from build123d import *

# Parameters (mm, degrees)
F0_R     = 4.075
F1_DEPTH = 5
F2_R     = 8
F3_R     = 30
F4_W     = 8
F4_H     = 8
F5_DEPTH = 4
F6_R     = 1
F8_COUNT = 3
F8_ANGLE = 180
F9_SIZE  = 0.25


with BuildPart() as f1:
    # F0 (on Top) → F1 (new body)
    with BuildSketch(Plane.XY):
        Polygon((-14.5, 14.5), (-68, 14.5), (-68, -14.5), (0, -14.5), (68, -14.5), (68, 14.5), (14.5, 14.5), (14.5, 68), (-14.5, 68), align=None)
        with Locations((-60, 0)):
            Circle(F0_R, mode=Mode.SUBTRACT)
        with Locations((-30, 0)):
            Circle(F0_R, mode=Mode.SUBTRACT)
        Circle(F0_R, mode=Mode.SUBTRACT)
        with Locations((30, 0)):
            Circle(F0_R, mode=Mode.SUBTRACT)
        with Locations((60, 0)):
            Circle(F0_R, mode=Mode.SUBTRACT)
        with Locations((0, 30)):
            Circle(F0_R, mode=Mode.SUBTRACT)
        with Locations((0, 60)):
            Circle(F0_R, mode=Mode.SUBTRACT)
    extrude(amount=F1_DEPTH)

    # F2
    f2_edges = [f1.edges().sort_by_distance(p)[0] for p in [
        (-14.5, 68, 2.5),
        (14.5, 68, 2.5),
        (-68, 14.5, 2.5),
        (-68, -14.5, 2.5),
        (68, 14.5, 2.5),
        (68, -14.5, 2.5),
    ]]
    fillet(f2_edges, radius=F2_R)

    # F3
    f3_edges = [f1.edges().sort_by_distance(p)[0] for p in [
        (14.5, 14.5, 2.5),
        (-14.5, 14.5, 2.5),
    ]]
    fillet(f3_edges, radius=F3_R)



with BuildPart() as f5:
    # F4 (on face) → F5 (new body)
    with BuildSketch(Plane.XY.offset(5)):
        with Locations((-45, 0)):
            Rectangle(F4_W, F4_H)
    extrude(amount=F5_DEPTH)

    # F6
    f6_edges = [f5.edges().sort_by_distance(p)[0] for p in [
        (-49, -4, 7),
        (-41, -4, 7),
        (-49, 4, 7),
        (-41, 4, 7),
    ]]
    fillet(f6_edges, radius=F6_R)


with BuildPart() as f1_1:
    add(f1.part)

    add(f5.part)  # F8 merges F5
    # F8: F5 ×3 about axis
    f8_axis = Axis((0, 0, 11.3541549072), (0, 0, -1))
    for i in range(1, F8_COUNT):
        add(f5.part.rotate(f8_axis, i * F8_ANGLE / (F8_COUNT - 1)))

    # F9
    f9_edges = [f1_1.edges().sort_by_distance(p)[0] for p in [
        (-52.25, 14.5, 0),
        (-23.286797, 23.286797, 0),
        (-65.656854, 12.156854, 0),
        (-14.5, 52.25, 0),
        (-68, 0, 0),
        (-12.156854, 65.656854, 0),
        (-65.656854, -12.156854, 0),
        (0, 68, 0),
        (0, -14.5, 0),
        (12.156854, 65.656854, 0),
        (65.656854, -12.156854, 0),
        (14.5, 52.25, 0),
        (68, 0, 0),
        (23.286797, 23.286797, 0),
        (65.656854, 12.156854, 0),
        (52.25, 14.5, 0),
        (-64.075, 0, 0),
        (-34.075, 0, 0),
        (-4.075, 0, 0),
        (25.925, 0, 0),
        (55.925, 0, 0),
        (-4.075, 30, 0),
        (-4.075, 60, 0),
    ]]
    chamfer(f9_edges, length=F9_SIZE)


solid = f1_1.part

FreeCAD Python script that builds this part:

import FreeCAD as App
import Part
import Sketcher

V = App.Vector
Q = App.Units.Quantity


def edges_at(feature, points):
    """Names of the edges that pass closest to the given points."""
    edges = feature.Shape.Edges
    near = lambda p: min(range(len(edges)), key=lambda i: edges[i].distToShape(Part.Vertex(*p))[0])
    return sorted({f"Edge{near(p) + 1}" for p in points})


def add_polygon(sketch, points):
    """Adds a closed chain of lines whose ends are joined by coincident constraints."""
    first, n = sketch.GeometryCount, len(points)
    for a, b in zip(points, points[1:] + points[:1]):
        sketch.addGeometry(Part.LineSegment(App.Vector(*a, 0), App.Vector(*b, 0)), False)
    for i in range(n):
        sketch.addConstraint(Sketcher.Constraint("Coincident", first + i, 2, first + (i + 1) % n, 1))

doc = App.newDocument("Part")
body = doc.addObject("PartDesign::Body", "Body")

sketch1 = body.newObject("Sketcher::SketchObject", "Sketch")
sketch1.AttachmentSupport = (doc.getObject("XY_Plane"), [""])
sketch1.MapMode = "FlatFace"
add_polygon(sketch1, [(-14.5, 14.5), (-68, 14.5), (-68, -14.5), (68, -14.5), (68, 14.5), (14.5, 14.5), (14.5, 68), (-14.5, 68)])
sketch1.addGeometry(Part.Circle(V(-60, 0, 0), V(0, 0, 1), 4.1), False)
sketch1.addGeometry(Part.Circle(V(-30, 0, 0), V(0, 0, 1), 4.1), False)
sketch1.addGeometry(Part.Circle(V(0, 0, 0), V(0, 0, 1), 4.1), False)
sketch1.addGeometry(Part.Circle(V(30, 0, 0), V(0, 0, 1), 4.1), False)
sketch1.addGeometry(Part.Circle(V(60, 0, 0), V(0, 0, 1), 4.1), False)
sketch1.addGeometry(Part.Circle(V(0, 30, 0), V(0, 0, 1), 4.1), False)
sketch1.addGeometry(Part.Circle(V(0, 60, 0), V(0, 0, 1), 4.1), False)
sketch1.addConstraint(Sketcher.Constraint("Horizontal", 0))
sketch1.addConstraint(Sketcher.Constraint("Vertical", 1))
sketch1.addConstraint(Sketcher.Constraint("Horizontal", 2))
sketch1.addConstraint(Sketcher.Constraint("Vertical", 3))
sketch1.addConstraint(Sketcher.Constraint("Horizontal", 4))
sketch1.addConstraint(Sketcher.Constraint("Vertical", 5))
sketch1.addConstraint(Sketcher.Constraint("Horizontal", 6))
sketch1.addConstraint(Sketcher.Constraint("Vertical", 7))
sketch1.addConstraint(Sketcher.Constraint("Coincident", 10, 3, -1, 1))
sketch1.addConstraint(Sketcher.Constraint("Equal", 8, 9))
sketch1.addConstraint(Sketcher.Constraint("Equal", 9, 10))
sketch1.addConstraint(Sketcher.Constraint("Equal", 10, 11))
sketch1.addConstraint(Sketcher.Constraint("Equal", 11, 12))
sketch1.addConstraint(Sketcher.Constraint("Equal", 12, 13))
sketch1.addConstraint(Sketcher.Constraint("Equal", 13, 14))
sketch1.addConstraint(Sketcher.Constraint("Symmetric", 9, 3, 11, 3, -1, 1))
sketch1.addConstraint(Sketcher.Constraint("Symmetric", 8, 3, 12, 3, -1, 1))
sketch1.addConstraint(Sketcher.Constraint("Symmetric", 0, 2, 2, 2, -1, 1))
sketch1.addConstraint(Sketcher.Constraint("Symmetric", 4, 2, 7, 2, -2))
sketch1.addConstraint(Sketcher.Constraint("PointOnObject", 8, 3, -1))
sketch1.addConstraint(Sketcher.Constraint("PointOnObject", 9, 3, -1))
sketch1.addConstraint(Sketcher.Constraint("PointOnObject", 13, 3, -2))
sketch1.addConstraint(Sketcher.Constraint("PointOnObject", 14, 3, -2))
sketch1.addConstraint(Sketcher.Constraint("Equal", 6, 1))
sketch1.addConstraint(Sketcher.Constraint("Equal", 4, 5))
sketch1.addConstraint(Sketcher.Constraint("Diameter", 8, Q("8.15 mm")))
sketch1.addConstraint(Sketcher.Constraint("DistanceX", 2, 1, 2, 2, Q("136 mm")))
sketch1.addConstraint(Sketcher.Constraint("DistanceX", 6, 2, 6, 1, Q("29 mm")))
sketch1.addConstraint(Sketcher.Constraint("DistanceX", 8, 3, -1, 1, Q("60 mm")))
sketch1.addConstraint(Sketcher.Constraint("DistanceX", 9, 3, -1, 1, Q("30 mm")))
sketch1.addConstraint(Sketcher.Constraint("DistanceY", -1, 1, 13, 3, Q("30 mm")))
sketch1.addConstraint(Sketcher.Constraint("DistanceY", -1, 1, 14, 3, Q("60 mm")))
pad1 = body.newObject("PartDesign::Pad", "Pad")
pad1.Profile = sketch1
pad1.Length = 5
doc.recompute()

fillet = body.newObject("PartDesign::Fillet", "Fillet")
fillet.Base = (pad1, edges_at(pad1, [
    (-14.5, 68, 2.5),
    (14.5, 68, 2.5),
    (-68, 14.5, 2.5),
    (-68, -14.5, 2.5),
    (68, 14.5, 2.5),
    (68, -14.5, 2.5),
]))
fillet.Radius = 8
doc.recompute()

fillet2 = body.newObject("PartDesign::Fillet", "Fillet001")
fillet2.Base = (fillet, edges_at(fillet, [(14.5, 14.5, 2.5), (-14.5, 14.5, 2.5)]))
fillet2.Radius = 30
body2 = doc.addObject("PartDesign::Body", "Body001")

sketch2 = body2.newObject("Sketcher::SketchObject", "Sketch001")
sketch2.AttachmentSupport = (doc.getObject("XY_Plane001"), [""])
sketch2.MapMode = "FlatFace"
sketch2.AttachmentOffset = App.Placement(V(0, 0, 5), App.Rotation())
add_polygon(sketch2, [(-49, 4), (-49, -4), (-41, -4), (-41, 4)])
sketch2.addConstraint(Sketcher.Constraint("Vertical", 0))
sketch2.addConstraint(Sketcher.Constraint("Horizontal", 1))
sketch2.addConstraint(Sketcher.Constraint("Vertical", 2))
sketch2.addConstraint(Sketcher.Constraint("Horizontal", 3))
sketch2.addConstraint(Sketcher.Constraint("Equal", 3, 0))
sketch2.addConstraint(Sketcher.Constraint("DistanceX", 1, 1, 1, 2, Q("8 mm")))
sketch2.addConstraint(Sketcher.Constraint("DistanceX", 0, 2, -1, 1, Q("49 mm")))
sketch2.addConstraint(Sketcher.Constraint("DistanceY", 0, 2, -1, 1, Q("4 mm")))
pad2 = body2.newObject("PartDesign::Pad", "Pad001")
pad2.Profile = sketch2
pad2.Length = 4
doc.recompute()

fillet3 = body2.newObject("PartDesign::Fillet", "Fillet002")
fillet3.Base = (pad2, edges_at(pad2, [
    (-49, -4, 7),
    (-41, -4, 7),
    (-49, 4, 7),
    (-41, 4, 7),
]))
fillet3.Radius = 1
doc.recompute()

body3 = doc.addObject("PartDesign::Body", "Body002")
body3.BaseFeature = body2
boolean = body.newObject("PartDesign::Boolean", "Boolean")
boolean.Type = "Fuse"
boolean.addObjects([body3])
doc.recompute()

body4 = doc.addObject("PartDesign::Body", "Body003")
body4.BaseFeature = body2
body4.Placement = App.Placement(V(0, 0, 0), App.Rotation(V(0, 0, -1), 90))
boolean2 = body.newObject("PartDesign::Boolean", "Boolean001")
boolean2.Type = "Fuse"
boolean2.addObjects([body4])
doc.recompute()

body2.Placement = App.Placement(V(0, 0, 0), App.Rotation(V(0, 0, -1), 180))
boolean3 = body.newObject("PartDesign::Boolean", "Boolean002")
boolean3.Type = "Fuse"
boolean3.addObjects([body2])
doc.recompute()

chamfer = body.newObject("PartDesign::Chamfer", "Chamfer")
chamfer.Base = (boolean3, edges_at(boolean3, [
    (-52.25, 14.5, 0),
    (-23.287, 23.287, 0),
    (-65.657, 12.157, 0),
    (-14.5, 52.25, 0),
    (-68, 0, 0),
    (-12.157, 65.657, 0),
    (-65.657, -12.157, 0),
    (0, 68, 0),
    (0, -14.5, 0),
    (12.157, 65.657, 0),
    (65.657, -12.157, 0),
    (14.5, 52.25, 0),
    (68, 0, 0),
    (23.287, 23.287, 0),
    (65.657, 12.157, 0),
    (52.25, 14.5, 0),
    (-64.075, 0, 0),
    (-34.075, 0, 0),
    (-4.075, 0, 0),
    (25.925, 0, 0),
    (55.925, 0, 0),
    (-4.075, 30, 0),
    (-4.075, 60, 0),
]))
chamfer.Size = 0.25

doc.recompute()
